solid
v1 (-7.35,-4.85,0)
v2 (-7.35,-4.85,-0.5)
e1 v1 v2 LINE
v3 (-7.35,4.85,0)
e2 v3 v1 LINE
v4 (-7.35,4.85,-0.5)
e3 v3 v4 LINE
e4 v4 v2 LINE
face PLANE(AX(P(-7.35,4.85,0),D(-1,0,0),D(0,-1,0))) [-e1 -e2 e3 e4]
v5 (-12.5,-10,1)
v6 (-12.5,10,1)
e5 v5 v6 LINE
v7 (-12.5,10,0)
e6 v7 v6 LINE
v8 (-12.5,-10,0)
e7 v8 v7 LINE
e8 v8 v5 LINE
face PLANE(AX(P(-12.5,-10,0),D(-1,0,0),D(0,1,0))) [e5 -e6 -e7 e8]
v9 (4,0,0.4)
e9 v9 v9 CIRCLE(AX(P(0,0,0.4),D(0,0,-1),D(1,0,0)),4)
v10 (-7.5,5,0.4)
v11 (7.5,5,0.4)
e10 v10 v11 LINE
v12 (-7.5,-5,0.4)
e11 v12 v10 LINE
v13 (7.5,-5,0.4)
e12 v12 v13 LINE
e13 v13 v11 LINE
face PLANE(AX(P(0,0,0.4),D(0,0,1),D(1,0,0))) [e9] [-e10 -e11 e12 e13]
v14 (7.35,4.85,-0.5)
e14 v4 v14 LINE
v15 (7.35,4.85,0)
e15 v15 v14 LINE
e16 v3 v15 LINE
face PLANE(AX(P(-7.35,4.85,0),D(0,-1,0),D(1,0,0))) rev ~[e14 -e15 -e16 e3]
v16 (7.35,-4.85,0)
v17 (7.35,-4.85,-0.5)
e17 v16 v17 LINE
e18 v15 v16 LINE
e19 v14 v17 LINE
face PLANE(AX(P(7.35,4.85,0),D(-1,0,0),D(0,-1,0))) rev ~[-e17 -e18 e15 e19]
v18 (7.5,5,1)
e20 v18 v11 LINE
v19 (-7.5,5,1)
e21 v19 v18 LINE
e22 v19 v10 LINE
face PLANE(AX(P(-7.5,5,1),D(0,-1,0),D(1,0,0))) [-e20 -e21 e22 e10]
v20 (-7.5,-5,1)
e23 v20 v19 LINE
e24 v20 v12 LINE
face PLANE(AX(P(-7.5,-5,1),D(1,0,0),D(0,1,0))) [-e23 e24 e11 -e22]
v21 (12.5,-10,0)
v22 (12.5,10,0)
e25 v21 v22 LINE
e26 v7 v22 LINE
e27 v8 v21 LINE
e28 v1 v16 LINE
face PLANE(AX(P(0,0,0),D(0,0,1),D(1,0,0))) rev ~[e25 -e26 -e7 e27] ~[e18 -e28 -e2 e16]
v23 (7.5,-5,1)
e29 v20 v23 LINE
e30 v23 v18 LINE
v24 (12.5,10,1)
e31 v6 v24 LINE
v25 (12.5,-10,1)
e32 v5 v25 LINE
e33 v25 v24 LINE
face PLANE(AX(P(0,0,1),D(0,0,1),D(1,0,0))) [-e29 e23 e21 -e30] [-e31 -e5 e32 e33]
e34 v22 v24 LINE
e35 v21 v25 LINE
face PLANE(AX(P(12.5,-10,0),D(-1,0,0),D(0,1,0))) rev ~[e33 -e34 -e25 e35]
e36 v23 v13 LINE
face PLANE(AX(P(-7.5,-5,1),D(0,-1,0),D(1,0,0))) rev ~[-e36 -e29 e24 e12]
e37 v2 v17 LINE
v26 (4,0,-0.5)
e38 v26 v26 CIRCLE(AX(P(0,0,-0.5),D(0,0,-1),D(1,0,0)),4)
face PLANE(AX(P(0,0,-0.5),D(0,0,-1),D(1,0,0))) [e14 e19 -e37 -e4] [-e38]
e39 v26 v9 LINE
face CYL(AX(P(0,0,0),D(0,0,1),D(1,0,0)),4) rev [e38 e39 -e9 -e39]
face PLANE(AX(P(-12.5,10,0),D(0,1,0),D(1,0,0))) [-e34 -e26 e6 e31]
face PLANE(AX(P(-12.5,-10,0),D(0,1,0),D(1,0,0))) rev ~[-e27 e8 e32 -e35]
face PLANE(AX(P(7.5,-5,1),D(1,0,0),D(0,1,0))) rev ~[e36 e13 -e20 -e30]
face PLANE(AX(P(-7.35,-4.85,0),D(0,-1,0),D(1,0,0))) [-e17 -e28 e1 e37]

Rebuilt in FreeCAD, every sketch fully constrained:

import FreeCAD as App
import Part
import Sketcher

V = App.Vector

doc = App.newDocument("Part")
body = doc.addObject("PartDesign::Body", "Body")

sketch1 = doc.addObject("Sketcher::SketchObject", "Sketch")
body.addObject(sketch1)
sketch1.AttachmentSupport = (doc.XY_Plane, [""])
sketch1.MapMode = "FlatFace"
sketch1.addGeometry([
    Part.LineSegment(V(-12.5, 10, 0), V(-12.5, -10, 0)),
    Part.LineSegment(V(-12.5, -10, 0), V(12.5, -10, 0)),
    Part.LineSegment(V(12.5, -10, 0), V(12.5, 10, 0)),
    Part.LineSegment(V(12.5, 10, 0), V(-12.5, 10, 0)),
    Part.Circle(V(0, 0, 0), V(0, 0, 1), 4),
], False)
sketch1.addConstraint([
    Sketcher.Constraint("Coincident", 0, 2, 1, 1),
    Sketcher.Constraint("Coincident", 1, 2, 2, 1),
    Sketcher.Constraint("Coincident", 2, 2, 3, 1),
    Sketcher.Constraint("Coincident", 3, 2, 0, 1),
    Sketcher.Constraint("Vertical", 0),
    Sketcher.Constraint("Horizontal", 1),
    Sketcher.Constraint("Vertical", 2),
    Sketcher.Constraint("Horizontal", 3),
    Sketcher.Constraint("Coincident", 4, 3, -1, 1),
    Sketcher.Constraint("Symmetric", 0, 2, 2, 2, -1, 1),
    Sketcher.Constraint("Diameter", 4, 8.0),
    Sketcher.Constraint("DistanceX", 1, 1, 1, 2, 25.0),
    Sketcher.Constraint("DistanceY", 0, 2, 0, 1, 20.0),
])
pad1 = doc.addObject("PartDesign::Pad", "Pad")
body.addObject(pad1)
pad1.Profile = sketch1
pad1.Length = 1

sketch2 = doc.addObject("Sketcher::SketchObject", "Sketch001")
body.addObject(sketch2)
sketch2.AttachmentSupport = (doc.XY_Plane, [""])
sketch2.MapMode = "FlatFace"
sketch2.AttachmentOffset = App.Placement(V(0, 0, 1), App.Rotation())
sketch2.addGeometry([
    Part.LineSegment(V(-8, 5, 0), V(-8, -5, 0)),
    Part.LineSegment(V(-8, -5, 0), V(8, -5, 0)),
    Part.LineSegment(V(8, -5, 0), V(8, 5, 0)),
    Part.LineSegment(V(8, 5, 0), V(-8, 5, 0)),
], False)
sketch2.addConstraint([
    Sketcher.Constraint("Coincident", 0, 2, 1, 1),
    Sketcher.Constraint("Coincident", 1, 2, 2, 1),
    Sketcher.Constraint("Coincident", 2, 2, 3, 1),
    Sketcher.Constraint("Coincident", 3, 2, 0, 1),
    Sketcher.Constraint("Vertical", 0),
    Sketcher.Constraint("Horizontal", 1),
    Sketcher.Constraint("Vertical", 2),
    Sketcher.Constraint("Horizontal", 3),
    Sketcher.Constraint("Symmetric", 0, 2, 2, 2, -1, 1),
    Sketcher.Constraint("DistanceX", 1, 1, 1, 2, 15.0),
    Sketcher.Constraint("DistanceY", 0, 2, 0, 1, 10.0),
])
pocket1 = doc.addObject("PartDesign::Pocket", "Pocket")
body.addObject(pocket1)
pocket1.Profile = sketch2
pocket1.Length = 0.6

sketch3 = doc.addObject("Sketcher::SketchObject", "Sketch002")
body.addObject(sketch3)
sketch3.AttachmentSupport = (doc.XY_Plane, [""])
sketch3.MapMode = "FlatFace"
sketch3.addGeometry([
    Part.LineSegment(V(-7.3, -4.8, 0), V(-7.3, 4.8, 0)),
    Part.LineSegment(V(-7.3, 4.8, 0), V(7.3, 4.8, 0)),
    Part.LineSegment(V(7.3, 4.8, 0), V(7.3, -4.8, 0)),
    Part.LineSegment(V(7.3, -4.8, 0), V(-7.3, -4.8, 0)),
    Part.Circle(V(0, 0, 0), V(0, 0, 1), 4),
], False)
sketch3.addConstraint([
    Sketcher.Constraint("Coincident", 0, 2, 1, 1),
    Sketcher.Constraint("Coincident", 1, 2, 2, 1),
    Sketcher.Constraint("Coincident", 2, 2, 3, 1),
    Sketcher.Constraint("Coincident", 3, 2, 0, 1),
    Sketcher.Constraint("Vertical", 0),
    Sketcher.Constraint("Horizontal", 1),
    Sketcher.Constraint("Vertical", 2),
    Sketcher.Constraint("Horizontal", 3),
    Sketcher.Constraint("Coincident", 4, 3, -1, 1),
    Sketcher.Constraint("Symmetric", 0, 2, 2, 2, -1, 1),
    Sketcher.Constraint("Diameter", 4, 8.0),
    Sketcher.Constraint("DistanceX", 1, 1, 1, 2, 14.7),
    Sketcher.Constraint("DistanceY", 0, 1, 0, 2, 9.7),
])
pad2 = doc.addObject("PartDesign::Pad", "Pad001")
body.addObject(pad2)
pad2.Profile = sketch3
pad2.Length = 0.5
pad2.Reversed = True

doc.recompute()
